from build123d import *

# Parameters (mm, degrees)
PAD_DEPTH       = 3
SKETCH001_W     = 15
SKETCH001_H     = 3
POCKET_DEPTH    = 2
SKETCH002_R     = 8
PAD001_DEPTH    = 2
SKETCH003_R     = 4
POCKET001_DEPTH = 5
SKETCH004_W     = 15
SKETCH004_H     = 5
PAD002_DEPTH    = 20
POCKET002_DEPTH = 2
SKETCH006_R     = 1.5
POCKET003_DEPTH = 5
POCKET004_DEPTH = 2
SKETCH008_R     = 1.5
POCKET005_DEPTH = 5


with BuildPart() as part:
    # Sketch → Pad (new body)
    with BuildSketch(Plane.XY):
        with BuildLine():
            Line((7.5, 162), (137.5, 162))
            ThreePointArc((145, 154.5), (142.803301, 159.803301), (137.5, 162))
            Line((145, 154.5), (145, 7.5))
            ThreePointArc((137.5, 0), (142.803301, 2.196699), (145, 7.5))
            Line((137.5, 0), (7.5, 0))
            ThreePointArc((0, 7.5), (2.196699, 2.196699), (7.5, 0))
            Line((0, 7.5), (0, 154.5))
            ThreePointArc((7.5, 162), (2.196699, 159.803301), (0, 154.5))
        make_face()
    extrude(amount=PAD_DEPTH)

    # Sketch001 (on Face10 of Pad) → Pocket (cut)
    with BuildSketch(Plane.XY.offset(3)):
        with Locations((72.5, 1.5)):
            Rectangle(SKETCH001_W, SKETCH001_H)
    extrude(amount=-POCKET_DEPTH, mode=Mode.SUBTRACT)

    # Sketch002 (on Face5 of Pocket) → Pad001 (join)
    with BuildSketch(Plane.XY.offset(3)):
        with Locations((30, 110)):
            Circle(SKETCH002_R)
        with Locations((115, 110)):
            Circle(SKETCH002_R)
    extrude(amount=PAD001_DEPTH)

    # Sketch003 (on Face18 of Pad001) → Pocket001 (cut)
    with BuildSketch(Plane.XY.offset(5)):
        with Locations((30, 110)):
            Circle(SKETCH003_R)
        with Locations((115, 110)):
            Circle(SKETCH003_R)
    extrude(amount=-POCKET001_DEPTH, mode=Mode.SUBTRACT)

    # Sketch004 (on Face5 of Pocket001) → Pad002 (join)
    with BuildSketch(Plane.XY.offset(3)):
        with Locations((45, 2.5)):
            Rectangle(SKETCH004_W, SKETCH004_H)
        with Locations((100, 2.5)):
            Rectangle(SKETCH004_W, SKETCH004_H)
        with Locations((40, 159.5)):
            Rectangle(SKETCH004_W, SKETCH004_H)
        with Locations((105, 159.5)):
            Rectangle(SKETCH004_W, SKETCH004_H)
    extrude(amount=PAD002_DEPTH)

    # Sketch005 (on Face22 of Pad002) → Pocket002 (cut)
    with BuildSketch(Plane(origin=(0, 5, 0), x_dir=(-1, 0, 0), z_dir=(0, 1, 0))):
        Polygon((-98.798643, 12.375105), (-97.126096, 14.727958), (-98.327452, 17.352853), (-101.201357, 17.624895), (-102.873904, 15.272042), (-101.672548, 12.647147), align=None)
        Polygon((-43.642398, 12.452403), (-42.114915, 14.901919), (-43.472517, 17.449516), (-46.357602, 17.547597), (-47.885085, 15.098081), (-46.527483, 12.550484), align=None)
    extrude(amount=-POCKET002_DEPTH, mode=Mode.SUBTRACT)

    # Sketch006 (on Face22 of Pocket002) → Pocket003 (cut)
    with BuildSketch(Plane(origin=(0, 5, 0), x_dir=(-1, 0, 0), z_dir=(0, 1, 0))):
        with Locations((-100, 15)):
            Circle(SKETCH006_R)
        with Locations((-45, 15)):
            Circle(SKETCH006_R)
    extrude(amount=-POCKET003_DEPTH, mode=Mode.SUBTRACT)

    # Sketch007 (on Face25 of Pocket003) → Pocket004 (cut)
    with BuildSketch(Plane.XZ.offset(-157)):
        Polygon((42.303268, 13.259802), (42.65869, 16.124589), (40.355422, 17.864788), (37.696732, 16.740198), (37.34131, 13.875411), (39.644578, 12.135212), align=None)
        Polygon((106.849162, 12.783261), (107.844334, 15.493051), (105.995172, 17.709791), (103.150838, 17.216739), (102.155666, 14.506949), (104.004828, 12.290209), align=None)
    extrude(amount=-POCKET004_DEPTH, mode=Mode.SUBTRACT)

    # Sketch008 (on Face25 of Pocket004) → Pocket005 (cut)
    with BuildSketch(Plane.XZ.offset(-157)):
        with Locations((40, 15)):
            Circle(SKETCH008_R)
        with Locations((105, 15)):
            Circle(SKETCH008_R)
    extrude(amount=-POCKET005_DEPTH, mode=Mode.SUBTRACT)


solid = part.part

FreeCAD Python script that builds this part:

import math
import FreeCAD as App
import Part
import Sketcher
Q = App.Units.Quantity

doc = App.newDocument("Part")
params = doc.addObject("Spreadsheet::Sheet", "Params")
for row, (alias, value) in enumerate([
    ("sketch1_radius", "7.5 mm"),
    ("sketch1_width", "130 mm"),
    ("sketch1_height", "147 mm"),
    ("pad1_length", "3 mm"),
    ("sketch2_width", "15 mm"),
    ("sketch2_height", "3 mm"),
    ("pocket1_length", "2 mm"),
    ("sketch3_diameter", "16 mm"),
    ("pad2_length", "2 mm"),
    ("sketch4_diameter", "8 mm"),
    ("pocket2_length", "5 mm"),
    ("sketch5_width", "15 mm"),
    ("sketch5_height", "5 mm"),
    ("pad3_length", "20 mm"),
    ("pocket3_length", "2 mm"),
    ("sketch7_diameter", "3 mm"),
    ("pocket4_length", "5 mm"),
    ("pocket5_length", "2 mm"),
    ("sketch9_diameter", "3 mm"),
    ("pocket6_length", "5 mm"),
], start=1):
    params.set(f"A{row}", alias)
    params.set(f"B{row}", "=" + value)
    params.setAlias(f"B{row}", alias)

body = doc.addObject("PartDesign::Body", "Body")

# Sketch on XY plane
sketch1 = doc.addObject("Sketcher::SketchObject", "Sketch")
body.addObject(sketch1)
sketch1.AttachmentSupport = (doc.XY_Plane, [""])
sketch1.MapMode = "FlatFace"
sketch1.addGeometry(Part.LineSegment(App.Vector(137.5, 162, 0), App.Vector(7.5, 162, 0)), False)
sketch1.addGeometry(Part.ArcOfCircle(Part.Circle(App.Vector(7.5, 154.5, 0), App.Vector(0, 0, 1), 7.5), math.radians(89.999996), math.radians(180.000004)), False)
sketch1.addGeometry(Part.LineSegment(App.Vector(0, 154.5, 0), App.Vector(0, 7.5, 0)), False)
sketch1.addGeometry(Part.ArcOfCircle(Part.Circle(App.Vector(7.5, 7.5, 0), App.Vector(0, 0, 1), 7.5), math.radians(179.999996), math.radians(270.000004)), False)
sketch1.addGeometry(Part.LineSegment(App.Vector(7.5, 0, 0), App.Vector(137.5, 0, 0)), False)
sketch1.addGeometry(Part.ArcOfCircle(Part.Circle(App.Vector(137.5, 7.5, 0), App.Vector(0, 0, 1), 7.5), math.radians(-90.000004), math.radians(0.000004)), False)
sketch1.addGeometry(Part.LineSegment(App.Vector(145, 7.5, 0), App.Vector(145, 154.5, 0)), False)
sketch1.addGeometry(Part.ArcOfCircle(Part.Circle(App.Vector(137.5, 154.5, 0), App.Vector(0, 0, 1), 7.5), math.radians(-0.000004), math.radians(90.000004)), False)
sketch1.addConstraint(Sketcher.Constraint("Tangent", 0, 2, 1, 1))
sketch1.addConstraint(Sketcher.Constraint("Tangent", 1, 2, 2, 1))
sketch1.addConstraint(Sketcher.Constraint("Tangent", 2, 2, 3, 1))
sketch1.addConstraint(Sketcher.Constraint("Tangent", 3, 2, 4, 1))
sketch1.addConstraint(Sketcher.Constraint("Tangent", 4, 2, 5, 1))
sketch1.addConstraint(Sketcher.Constraint("Tangent", 5, 2, 6, 1))
sketch1.addConstraint(Sketcher.Constraint("Tangent", 6, 2, 7, 1))
sketch1.addConstraint(Sketcher.Constraint("Tangent", 7, 2, 0, 1))
sketch1.addConstraint(Sketcher.Constraint("Horizontal", 0))
sketch1.addConstraint(Sketcher.Constraint("Vertical", 2))
sketch1.addConstraint(Sketcher.Constraint("Horizontal", 4))
sketch1.addConstraint(Sketcher.Constraint("Vertical", 6))
sketch1.addConstraint(Sketcher.Constraint("Equal", 1, 3))
sketch1.addConstraint(Sketcher.Constraint("Equal", 3, 5))
sketch1.addConstraint(Sketcher.Constraint("Equal", 5, 7))
sketch1.addConstraint(Sketcher.Constraint("PointOnObject", 1, 2, -2))
sketch1.addConstraint(Sketcher.Constraint("PointOnObject", 3, 2, -1))
sketch1.addConstraint(Sketcher.Constraint("Radius", 1, Q("7.5 mm")))
sketch1.addConstraint(Sketcher.Constraint("DistanceX", 0, 2, 0, 1, Q("130 mm")))
sketch1.addConstraint(Sketcher.Constraint("DistanceY", 2, 2, 2, 1, Q("147 mm")))
sketch1.setExpression("Constraints[17]", "Params.sketch1_radius")
sketch1.setExpression("Constraints[18]", "Params.sketch1_width")
sketch1.setExpression("Constraints[19]", "Params.sketch1_height")
pad1 = doc.addObject("PartDesign::Pad", "Pad")
body.addObject(pad1)
pad1.Profile = sketch1
pad1.setExpression("Length", "Params.pad1_length")

# Sketch on XY plane
sketch2 = doc.addObject("Sketcher::SketchObject", "Sketch001")
body.addObject(sketch2)
sketch2.AttachmentSupport = (doc.XY_Plane, [""])
sketch2.MapMode = "FlatFace"
sketch2.AttachmentOffset = App.Placement(App.Vector(0, 0, 3), App.Rotation())
sketch2.addGeometry(Part.LineSegment(App.Vector(65, 3, 0), App.Vector(65, 0, 0)), False)
sketch2.addGeometry(Part.LineSegment(App.Vector(65, 0, 0), App.Vector(80, 0, 0)), False)
sketch2.addGeometry(Part.LineSegment(App.Vector(80, 0, 0), App.Vector(80, 3, 0)), False)
sketch2.addGeometry(Part.LineSegment(App.Vector(80, 3, 0), App.Vector(65, 3, 0)), False)
sketch2.addConstraint(Sketcher.Constraint("Coincident", 0, 2, 1, 1))
sketch2.addConstraint(Sketcher.Constraint("Coincident", 1, 2, 2, 1))
sketch2.addConstraint(Sketcher.Constraint("Coincident", 2, 2, 3, 1))
sketch2.addConstraint(Sketcher.Constraint("Coincident", 3, 2, 0, 1))
sketch2.addConstraint(Sketcher.Constraint("Vertical", 0))
sketch2.addConstraint(Sketcher.Constraint("Horizontal", 1))
sketch2.addConstraint(Sketcher.Constraint("Vertical", 2))
sketch2.addConstraint(Sketcher.Constraint("Horizontal", 3))
sketch2.addConstraint(Sketcher.Constraint("PointOnObject", 0, 2, -1))
sketch2.addConstraint(Sketcher.Constraint("DistanceX", 1, 1, 1, 2, Q("15 mm")))
sketch2.addConstraint(Sketcher.Constraint("DistanceY", 0, 2, 0, 1, Q("3 mm")))
sketch2.addConstraint(Sketcher.Constraint("DistanceX", -1, 1, 0, 2, Q("65 mm")))
sketch2.setExpression("Constraints[9]", "Params.sketch2_width")
sketch2.setExpression("Constraints[10]", "Params.sketch2_height")
pocket1 = doc.addObject("PartDesign::Pocket", "Pocket")
body.addObject(pocket1)
pocket1.Profile = sketch2
pocket1.setExpression("Length", "Params.pocket1_length")

# Sketch on XY plane
sketch3 = doc.addObject("Sketcher::SketchObject", "Sketch002")
body.addObject(sketch3)
sketch3.AttachmentSupport = (doc.XY_Plane, [""])
sketch3.MapMode = "FlatFace"
sketch3.AttachmentOffset = App.Placement(App.Vector(0, 0, 3), App.Rotation())
sketch3.addGeometry(Part.Circle(App.Vector(30, 110, 0), App.Vector(0, 0, 1), 8), False)
sketch3.addGeometry(Part.Circle(App.Vector(115, 110, 0), App.Vector(0, 0, 1), 8), False)
sketch3.addConstraint(Sketcher.Constraint("Equal", 0, 1))
sketch3.addConstraint(Sketcher.Constraint("Horizontal", 0, 3, 1, 3))
sketch3.addConstraint(Sketcher.Constraint("Diameter", 0, Q("16 mm")))
sketch3.addConstraint(Sketcher.Constraint("DistanceX", -1, 1, 0, 3, Q("30 mm")))
sketch3.addConstraint(Sketcher.Constraint("DistanceY", -1, 1, 0, 3, Q("110 mm")))
sketch3.addConstraint(Sketcher.Constraint("DistanceX", -1, 1, 1, 3, Q("115 mm")))
sketch3.setExpression("Constraints[2]", "Params.sketch3_diameter")
pad2 = doc.addObject("PartDesign::Pad", "Pad001")
body.addObject(pad2)
pad2.Profile = sketch3
pad2.setExpression("Length", "Params.pad2_length")

# Sketch on XY plane
sketch4 = doc.addObject("Sketcher::SketchObject", "Sketch003")
body.addObject(sketch4)
sketch4.AttachmentSupport = (doc.XY_Plane, [""])
sketch4.MapMode = "FlatFace"
sketch4.AttachmentOffset = App.Placement(App.Vector(0, 0, 5), App.Rotation())
sketch4.addGeometry(Part.Circle(App.Vector(30, 110, 0), App.Vector(0, 0, 1), 4), False)
sketch4.addGeometry(Part.Circle(App.Vector(115, 110, 0), App.Vector(0, 0, 1), 4), False)
sketch4.addConstraint(Sketcher.Constraint("Equal", 0, 1))
sketch4.addConstraint(Sketcher.Constraint("Horizontal", 0, 3, 1, 3))
sketch4.addConstraint(Sketcher.Constraint("Diameter", 0, Q("8 mm")))
sketch4.addConstraint(Sketcher.Constraint("DistanceX", -1, 1, 0, 3, Q("30 mm")))
sketch4.addConstraint(Sketcher.Constraint("DistanceY", -1, 1, 0, 3, Q("110 mm")))
sketch4.addConstraint(Sketcher.Constraint("DistanceX", -1, 1, 1, 3, Q("115 mm")))
sketch4.setExpression("Constraints[2]", "Params.sketch4_diameter")
pocket2 = doc.addObject("PartDesign::Pocket", "Pocket001")
body.addObject(pocket2)
pocket2.Profile = sketch4
pocket2.setExpression("Length", "Params.pocket2_length")

# Sketch on XY plane
sketch5 = doc.addObject("Sketcher::SketchObject", "Sketch004")
body.addObject(sketch5)
sketch5.AttachmentSupport = (doc.XY_Plane, [""])
sketch5.MapMode = "FlatFace"
sketch5.AttachmentOffset = App.Placement(App.Vector(0, 0, 3), App.Rotation())
sketch5.addGeometry(Part.LineSegment(App.Vector(37.5, 5, 0), App.Vector(37.5, 0, 0)), False)
sketch5.addGeometry(Part.LineSegment(App.Vector(37.5, 0, 0), App.Vector(52.5, 0, 0)), False)
sketch5.addGeometry(Part.LineSegment(App.Vector(52.5, 0, 0), App.Vector(52.5, 5, 0)), False)
sketch5.addGeometry(Part.LineSegment(App.Vector(52.5, 5, 0), App.Vector(37.5, 5, 0)), False)
sketch5.addGeometry(Part.LineSegment(App.Vector(92.5, 5, 0), App.Vector(92.5, 0, 0)), False)
sketch5.addGeometry(Part.LineSegment(App.Vector(92.5, 0, 0), App.Vector(107.5, 0, 0)), False)
sketch5.addGeometry(Part.LineSegment(App.Vector(107.5, 0, 0), App.Vector(107.5, 5, 0)), False)
sketch5.addGeometry(Part.LineSegment(App.Vector(107.5, 5, 0), App.Vector(92.5, 5, 0)), False)
sketch5.addGeometry(Part.LineSegment(App.Vector(32.5, 162, 0), App.Vector(32.5, 157, 0)), False)
sketch5.addGeometry(Part.LineSegment(App.Vector(32.5, 157, 0), App.Vector(47.5, 157, 0)), False)
sketch5.addGeometry(Part.LineSegment(App.Vector(47.5, 157, 0), App.Vector(47.5, 162, 0)), False)
sketch5.addGeometry(Part.LineSegment(App.Vector(47.5, 162, 0), App.Vector(32.5, 162, 0)), False)
sketch5.addGeometry(Part.LineSegment(App.Vector(97.5, 162, 0), App.Vector(97.5, 157, 0)), False)
sketch5.addGeometry(Part.LineSegment(App.Vector(97.5, 157, 0), App.Vector(112.5, 157, 0)), False)
sketch5.addGeometry(Part.LineSegment(App.Vector(112.5, 157, 0), App.Vector(112.5, 162, 0)), False)
sketch5.addGeometry(Part.LineSegment(App.Vector(112.5, 162, 0), App.Vector(97.5, 162, 0)), False)
sketch5.addConstraint(Sketcher.Constraint("Coincident", 0, 2, 1, 1))
sketch5.addConstraint(Sketcher.Constraint("Coincident", 1, 2, 2, 1))
sketch5.addConstraint(Sketcher.Constraint("Coincident", 2, 2, 3, 1))
sketch5.addConstraint(Sketcher.Constraint("Coincident", 3, 2, 0, 1))
sketch5.addConstraint(Sketcher.Constraint("Coincident", 4, 2, 5, 1))
sketch5.addConstraint(Sketcher.Constraint("Coincident", 5, 2, 6, 1))
sketch5.addConstraint(Sketcher.Constraint("Coincident", 6, 2, 7, 1))
sketch5.addConstraint(Sketcher.Constraint("Coincident", 7, 2, 4, 1))
sketch5.addConstraint(Sketcher.Constraint("Coincident", 8, 2, 9, 1))
sketch5.addConstraint(Sketcher.Constraint("Coincident", 9, 2, 10, 1))
sketch5.addConstraint(Sketcher.Constraint("Coincident", 10, 2, 11, 1))
sketch5.addConstraint(Sketcher.Constraint("Coincident", 11, 2, 8, 1))
sketch5.addConstraint(Sketcher.Constraint("Coincident", 12, 2, 13, 1))
sketch5.addConstraint(Sketcher.Constraint("Coincident", 13, 2, 14, 1))
sketch5.addConstraint(Sketcher.Constraint("Coincident", 14, 2, 15, 1))
sketch5.addConstraint(Sketcher.Constraint("Coincident", 15, 2, 12, 1))
sketch5.addConstraint(Sketcher.Constraint("Vertical", 0))
sketch5.addConstraint(Sketcher.Constraint("Horizontal", 1))
sketch5.addConstraint(Sketcher.Constraint("Vertical", 2))
sketch5.addConstraint(Sketcher.Constraint("Horizontal", 3))
sketch5.addConstraint(Sketcher.Constraint("Vertical", 4))
sketch5.addConstraint(Sketcher.Constraint("Horizontal", 5))
sketch5.addConstraint(Sketcher.Constraint("Vertical", 6))
sketch5.addConstraint(Sketcher.Constraint("Horizontal", 7))
sketch5.addConstraint(Sketcher.Constraint("Vertical", 8))
sketch5.addConstraint(Sketcher.Constraint("Horizontal", 9))
sketch5.addConstraint(Sketcher.Constraint("Vertical", 10))
sketch5.addConstraint(Sketcher.Constraint("Horizontal", 11))
sketch5.addConstraint(Sketcher.Constraint("Vertical", 12))
sketch5.addConstraint(Sketcher.Constraint("Horizontal", 13))
sketch5.addConstraint(Sketcher.Constraint("Vertical", 14))
sketch5.addConstraint(Sketcher.Constraint("Horizontal", 15))
sketch5.addConstraint(Sketcher.Constraint("PointOnObject", 0, 2, -1))
sketch5.addConstraint(Sketcher.Constraint("PointOnObject", 4, 2, -1))
sketch5.addConstraint(Sketcher.Constraint("Horizontal", 3, 2, 6, 2))
sketch5.addConstraint(Sketcher.Constraint("Horizontal", 9, 2, 12, 2))
sketch5.addConstraint(Sketcher.Constraint("Horizontal", 11, 2, 14, 2))
sketch5.addConstraint(Sketcher.Constraint("Equal", 3, 5))
sketch5.addConstraint(Sketcher.Constraint("Equal", 7, 9))
sketch5.addConstraint(Sketcher.Constraint("Equal", 11, 13))
sketch5.addConstraint(Sketcher.Constraint("Equal", 6, 8))
sketch5.addConstraint(Sketcher.Constraint("DistanceX", 1, 1, 1, 2, Q("15 mm")))
sketch5.addConstraint(Sketcher.Constraint("DistanceY", 0, 2, 0, 1, Q("5 mm")))
sketch5.addConstraint(Sketcher.Constraint("DistanceY", -1, 1, 8, 2, Q("157 mm")))
sketch5.addConstraint(Sketcher.Constraint("DistanceX", 1, 2, 4, 2, Q("40 mm")))
sketch5.addConstraint(Sketcher.Constraint("DistanceX", 8, 2, 3, 2, Q("5 mm")))
sketch5.addConstraint(Sketcher.Constraint("DistanceX", 9, 2, 12, 2, Q("50 mm")))
sketch5.addConstraint(Sketcher.Constraint("DistanceX", -1, 1, 0, 2, Q("37.5 mm")))
sketch5.setExpression("Constraints[41]", "Params.sketch5_width")
sketch5.setExpression("Constraints[42]", "Params.sketch5_height")
pad3 = doc.addObject("PartDesign::Pad", "Pad002")
body.addObject(pad3)
pad3.Profile = sketch5
pad3.setExpression("Length", "Params.pad3_length")

# Sketch on XZ plane
sketch6 = doc.addObject("Sketcher::SketchObject", "Sketch005")
body.addObject(sketch6)
sketch6.AttachmentSupport = (doc.XZ_Plane, [""])
sketch6.MapMode = "FlatFace"
sketch6.AttachmentOffset = App.Placement(App.Vector(0, 0, -5), App.Rotation())
sketch6.addGeometry(Part.LineSegment(App.Vector(98.798643, 12.375105, 0), App.Vector(97.126096, 14.727958, 0)), False)
sketch6.addGeometry(Part.LineSegment(App.Vector(97.126096, 14.727958, 0), App.Vector(98.327452, 17.352853, 0)), False)
sketch6.addGeometry(Part.LineSegment(App.Vector(98.327452, 17.352853, 0), App.Vector(101.201357, 17.624895, 0)), False)
sketch6.addGeometry(Part.LineSegment(App.Vector(101.201357, 17.624895, 0), App.Vector(102.873904, 15.272042, 0)), False)
sketch6.addGeometry(Part.LineSegment(App.Vector(102.873904, 15.272042, 0), App.Vector(101.672548, 12.647147, 0)), False)
sketch6.addGeometry(Part.LineSegment(App.Vector(101.672548, 12.647147, 0), App.Vector(98.798643, 12.375105, 0)), False)
sketch6.addGeometry(Part.LineSegment(App.Vector(43.642398, 12.452403, 0), App.Vector(42.114915, 14.901919, 0)), False)
sketch6.addGeometry(Part.LineSegment(App.Vector(42.114915, 14.901919, 0), App.Vector(43.472517, 17.449516, 0)), False)
sketch6.addGeometry(Part.LineSegment(App.Vector(43.472517, 17.449516, 0), App.Vector(46.357602, 17.547597, 0)), False)
sketch6.addGeometry(Part.LineSegment(App.Vector(46.357602, 17.547597, 0), App.Vector(47.885085, 15.098081, 0)), False)
sketch6.addGeometry(Part.LineSegment(App.Vector(47.885085, 15.098081, 0), App.Vector(46.527483, 12.550484, 0)), False)
sketch6.addGeometry(Part.LineSegment(App.Vector(46.527483, 12.550484, 0), App.Vector(43.642398, 12.452403, 0)), False)
sketch6.addConstraint(Sketcher.Constraint("Coincident", 0, 2, 1, 1))
sketch6.addConstraint(Sketcher.Constraint("Coincident", 1, 2, 2, 1))
sketch6.addConstraint(Sketcher.Constraint("Coincident", 2, 2, 3, 1))
sketch6.addConstraint(Sketcher.Constraint("Coincident", 3, 2, 4, 1))
sketch6.addConstraint(Sketcher.Constraint("Coincident", 4, 2, 5, 1))
sketch6.addConstraint(Sketcher.Constraint("Coincident", 5, 2, 0, 1))
sketch6.addConstraint(Sketcher.Constraint("Coincident", 6, 2, 7, 1))
sketch6.addConstraint(Sketcher.Constraint("Coincident", 7, 2, 8, 1))
sketch6.addConstraint(Sketcher.Constraint("Coincident", 8, 2, 9, 1))
sketch6.addConstraint(Sketcher.Constraint("Coincident", 9, 2, 10, 1))
sketch6.addConstraint(Sketcher.Constraint("Coincident", 10, 2, 11, 1))
sketch6.addConstraint(Sketcher.Constraint("Coincident", 11, 2, 6, 1))
sketch6.addConstraint(Sketcher.Constraint("Parallel", 0, 3))
sketch6.addConstraint(Sketcher.Constraint("Parallel", 1, 4))
sketch6.addConstraint(Sketcher.Constraint("Parallel", 2, 5))
sketch6.addConstraint(Sketcher.Constraint("Parallel", 6, 9))
sketch6.addConstraint(Sketcher.Constraint("Parallel", 7, 10))
sketch6.addConstraint(Sketcher.Constraint("Parallel", 8, 11))
sketch6.addConstraint(Sketcher.Constraint("Equal", 0, 1))
sketch6.addConstraint(Sketcher.Constraint("Equal", 1, 2))
sketch6.addConstraint(Sketcher.Constraint("Equal", 2, 3))
sketch6.addConstraint(Sketcher.Constraint("Equal", 5, 6))
sketch6.addConstraint(Sketcher.Constraint("Equal", 6, 7))
sketch6.addConstraint(Sketcher.Constraint("Equal", 7, 8))
sketch6.addConstraint(Sketcher.Constraint("Equal", 8, 9))
sketch6.addConstraint(Sketcher.Constraint("Distance", 0, Q("2.886751 mm")))
sketch6.addConstraint(Sketcher.Constraint("DistanceX", -1, 1, 1, 2, Q("98.327452 mm")))
sketch6.addConstraint(Sketcher.Constraint("DistanceX", -1, 1, 4, 2, Q("101.672548 mm")))
sketch6.addConstraint(Sketcher.Constraint("DistanceY", -1, 1, 6, 2, Q("14.901919 mm")))
sketch6.addConstraint(Sketcher.Constraint("DistanceY", -1, 1, 9, 2, Q("15.098081 mm")))
sketch6.addConstraint(Sketcher.Constraint("DistanceY", 1, 2, 2, 2, Q("0.272042 mm")))
sketch6.addConstraint(Sketcher.Constraint("DistanceX", 0, 2, 2, 2, Q("4.075261 mm")))
sketch6.addConstraint(Sketcher.Constraint("DistanceX", 6, 2, 0, 2, Q("55.011181 mm")))
sketch6.addConstraint(Sketcher.Constraint("DistanceY", 0, 2, 6, 2, Q("0.173961 mm")))
sketch6.addConstraint(Sketcher.Constraint("DistanceX", 7, 2, 0, 2, Q("53.653579 mm")))
sketch6.addConstraint(Sketcher.Constraint("DistanceY", 7, 2, 8, 2, Q("0.098081 mm")))
pocket3 = doc.addObject("PartDesign::Pocket", "Pocket002")
body.addObject(pocket3)
pocket3.Profile = sketch6
pocket3.setExpression("Length", "Params.pocket3_length")
pocket3.Reversed = True

# Sketch on XZ plane
sketch7 = doc.addObject("Sketcher::SketchObject", "Sketch006")
body.addObject(sketch7)
sketch7.AttachmentSupport = (doc.XZ_Plane, [""])
sketch7.MapMode = "FlatFace"
sketch7.AttachmentOffset = App.Placement(App.Vector(0, 0, -5), App.Rotation())
sketch7.addGeometry(Part.Circle(App.Vector(100, 15, 0), App.Vector(0, 0, 1), 1.5), False)
sketch7.addGeometry(Part.Circle(App.Vector(45, 15, 0), App.Vector(0, 0, 1), 1.5), False)
sketch7.addConstraint(Sketcher.Constraint("Equal", 0, 1))
sketch7.addConstraint(Sketcher.Constraint("Horizontal", 0, 3, 1, 3))
sketch7.addConstraint(Sketcher.Constraint("Diameter", 0, Q("3 mm")))
sketch7.addConstraint(Sketcher.Constraint("DistanceX", -1, 1, 0, 3, Q("100 mm")))
sketch7.addConstraint(Sketcher.Constraint("DistanceY", -1, 1, 0, 3, Q("15 mm")))
sketch7.addConstraint(Sketcher.Constraint("DistanceX", -1, 1, 1, 3, Q("45 mm")))
sketch7.setExpression("Constraints[2]", "Params.sketch7_diameter")
pocket4 = doc.addObject("PartDesign::Pocket", "Pocket003")
body.addObject(pocket4)
pocket4.Profile = sketch7
pocket4.setExpression("Length", "Params.pocket4_length")
pocket4.Reversed = True

# Sketch on XZ plane
sketch8 = doc.addObject("Sketcher::SketchObject", "Sketch007")
body.addObject(sketch8)
sketch8.AttachmentSupport = (doc.XZ_Plane, [""])
sketch8.MapMode = "FlatFace"
sketch8.AttachmentOffset = App.Placement(App.Vector(0, 0, -157), App.Rotation())
sketch8.addGeometry(Part.LineSegment(App.Vector(42.303268, 13.259802, 0), App.Vector(42.65869, 16.124589, 0)), False)
sketch8.addGeometry(Part.LineSegment(App.Vector(42.65869, 16.124589, 0), App.Vector(40.355422, 17.864788, 0)), False)
sketch8.addGeometry(Part.LineSegment(App.Vector(40.355422, 17.864788, 0), App.Vector(37.696732, 16.740198, 0)), False)
sketch8.addGeometry(Part.LineSegment(App.Vector(37.696732, 16.740198, 0), App.Vector(37.34131, 13.875411, 0)), False)
sketch8.addGeometry(Part.LineSegment(App.Vector(37.34131, 13.875411, 0), App.Vector(39.644578, 12.135212, 0)), False)
sketch8.addGeometry(Part.LineSegment(App.Vector(39.644578, 12.135212, 0), App.Vector(42.303268, 13.259802, 0)), False)
sketch8.addGeometry(Part.LineSegment(App.Vector(106.849162, 12.783261, 0), App.Vector(107.844334, 15.493051, 0)), False)
sketch8.addGeometry(Part.LineSegment(App.Vector(107.844334, 15.493051, 0), App.Vector(105.995172, 17.709791, 0)), False)
sketch8.addGeometry(Part.LineSegment(App.Vector(105.995172, 17.709791, 0), App.Vector(103.150838, 17.216739, 0)), False)
sketch8.addGeometry(Part.LineSegment(App.Vector(103.150838, 17.216739, 0), App.Vector(102.155666, 14.506949, 0)), False)
sketch8.addGeometry(Part.LineSegment(App.Vector(102.155666, 14.506949, 0), App.Vector(104.004828, 12.290209, 0)), False)
sketch8.addGeometry(Part.LineSegment(App.Vector(104.004828, 12.290209, 0), App.Vector(106.849162, 12.783261, 0)), False)
sketch8.addConstraint(Sketcher.Constraint("Coincident", 0, 2, 1, 1))
sketch8.addConstraint(Sketcher.Constraint("Coincident", 1, 2, 2, 1))
sketch8.addConstraint(Sketcher.Constraint("Coincident", 2, 2, 3, 1))
sketch8.addConstraint(Sketcher.Constraint("Coincident", 3, 2, 4, 1))
sketch8.addConstraint(Sketcher.Constraint("Coincident", 4, 2, 5, 1))
sketch8.addConstraint(Sketcher.Constraint("Coincident", 5, 2, 0, 1))
sketch8.addConstraint(Sketcher.Constraint("Coincident", 6, 2, 7, 1))
sketch8.addConstraint(Sketcher.Constraint("Coincident", 7, 2, 8, 1))
sketch8.addConstraint(Sketcher.Constraint("Coincident", 8, 2, 9, 1))
sketch8.addConstraint(Sketcher.Constraint("Coincident", 9, 2, 10, 1))
sketch8.addConstraint(Sketcher.Constraint("Coincident", 10, 2, 11, 1))
sketch8.addConstraint(Sketcher.Constraint("Coincident", 11, 2, 6, 1))
sketch8.addConstraint(Sketcher.Constraint("Parallel", 0, 3))
sketch8.addConstraint(Sketcher.Constraint("Parallel", 1, 4))
sketch8.addConstraint(Sketcher.Constraint("Parallel", 2, 5))
sketch8.addConstraint(Sketcher.Constraint("Parallel", 6, 9))
sketch8.addConstraint(Sketcher.Constraint("Parallel", 7, 10))
sketch8.addConstraint(Sketcher.Constraint("Parallel", 8, 11))
sketch8.addConstraint(Sketcher.Constraint("Equal", 0, 1))
sketch8.addConstraint(Sketcher.Constraint("Equal", 1, 2))
sketch8.addConstraint(Sketcher.Constraint("Equal", 2, 3))
sketch8.addConstraint(Sketcher.Constraint("Equal", 5, 6))
sketch8.addConstraint(Sketcher.Constraint("Equal", 6, 7))
sketch8.addConstraint(Sketcher.Constraint("Equal", 7, 8))
sketch8.addConstraint(Sketcher.Constraint("Equal", 8, 9))
sketch8.addConstraint(Sketcher.Constraint("DistanceY", 0, 2, 1, 2, Q("1.740199 mm")))
sketch8.addConstraint(Sketcher.Constraint("DistanceY", 0, 2, 7, 2, Q("1.585202 mm")))
sketch8.addConstraint(Sketcher.Constraint("DistanceY", 9, 2, 6, 2, Q("0.986102 mm")))
sketch8.addConstraint(Sketcher.Constraint("Distance", 0, Q("2.886751 mm")))
sketch8.addConstraint(Sketcher.Constraint("DistanceX", -1, 1, 0, 2, Q("42.65869 mm")))
sketch8.addConstraint(Sketcher.Constraint("DistanceY", -1, 1, 0, 2, Q("16.124589 mm")))
sketch8.addConstraint(Sketcher.Constraint("DistanceX", -1, 1, 2, 2, Q("37.696732 mm")))
sketch8.addConstraint(Sketcher.Constraint("DistanceX", -1, 1, 3, 2, Q("37.34131 mm")))
sketch8.addConstraint(Sketcher.Constraint("DistanceY", -1, 1, 6, 2, Q("15.493051 mm")))
sketch8.addConstraint(Sketcher.Constraint("DistanceX", -1, 1, 7, 2, Q("105.995172 mm")))
sketch8.addConstraint(Sketcher.Constraint("DistanceY", -1, 1, 8, 2, Q("17.216739 mm")))
pocket5 = doc.addObject("PartDesign::Pocket", "Pocket004")
body.addObject(pocket5)
pocket5.Profile = sketch8
pocket5.setExpression("Length", "Params.pocket5_length")

# Sketch on XZ plane
sketch9 = doc.addObject("Sketcher::SketchObject", "Sketch008")
body.addObject(sketch9)
sketch9.AttachmentSupport = (doc.XZ_Plane, [""])
sketch9.MapMode = "FlatFace"
sketch9.AttachmentOffset = App.Placement(App.Vector(0, 0, -157), App.Rotation())
sketch9.addGeometry(Part.Circle(App.Vector(40, 15, 0), App.Vector(0, 0, 1), 1.5), False)
sketch9.addGeometry(Part.Circle(App.Vector(105, 15, 0), App.Vector(0, 0, 1), 1.5), False)
sketch9.addConstraint(Sketcher.Constraint("Equal", 0, 1))
sketch9.addConstraint(Sketcher.Constraint("Horizontal", 0, 3, 1, 3))
sketch9.addConstraint(Sketcher.Constraint("Diameter", 0, Q("3 mm")))
sketch9.addConstraint(Sketcher.Constraint("DistanceX", -1, 1, 0, 3, Q("40 mm")))
sketch9.addConstraint(Sketcher.Constraint("DistanceY", -1, 1, 0, 3, Q("15 mm")))
sketch9.addConstraint(Sketcher.Constraint("DistanceX", -1, 1, 1, 3, Q("105 mm")))
sketch9.setExpression("Constraints[2]", "Params.sketch9_diameter")
pocket6 = doc.addObject("PartDesign::Pocket", "Pocket005")
body.addObject(pocket6)
pocket6.Profile = sketch9
pocket6.setExpression("Length", "Params.pocket6_length")

doc.recompute()
